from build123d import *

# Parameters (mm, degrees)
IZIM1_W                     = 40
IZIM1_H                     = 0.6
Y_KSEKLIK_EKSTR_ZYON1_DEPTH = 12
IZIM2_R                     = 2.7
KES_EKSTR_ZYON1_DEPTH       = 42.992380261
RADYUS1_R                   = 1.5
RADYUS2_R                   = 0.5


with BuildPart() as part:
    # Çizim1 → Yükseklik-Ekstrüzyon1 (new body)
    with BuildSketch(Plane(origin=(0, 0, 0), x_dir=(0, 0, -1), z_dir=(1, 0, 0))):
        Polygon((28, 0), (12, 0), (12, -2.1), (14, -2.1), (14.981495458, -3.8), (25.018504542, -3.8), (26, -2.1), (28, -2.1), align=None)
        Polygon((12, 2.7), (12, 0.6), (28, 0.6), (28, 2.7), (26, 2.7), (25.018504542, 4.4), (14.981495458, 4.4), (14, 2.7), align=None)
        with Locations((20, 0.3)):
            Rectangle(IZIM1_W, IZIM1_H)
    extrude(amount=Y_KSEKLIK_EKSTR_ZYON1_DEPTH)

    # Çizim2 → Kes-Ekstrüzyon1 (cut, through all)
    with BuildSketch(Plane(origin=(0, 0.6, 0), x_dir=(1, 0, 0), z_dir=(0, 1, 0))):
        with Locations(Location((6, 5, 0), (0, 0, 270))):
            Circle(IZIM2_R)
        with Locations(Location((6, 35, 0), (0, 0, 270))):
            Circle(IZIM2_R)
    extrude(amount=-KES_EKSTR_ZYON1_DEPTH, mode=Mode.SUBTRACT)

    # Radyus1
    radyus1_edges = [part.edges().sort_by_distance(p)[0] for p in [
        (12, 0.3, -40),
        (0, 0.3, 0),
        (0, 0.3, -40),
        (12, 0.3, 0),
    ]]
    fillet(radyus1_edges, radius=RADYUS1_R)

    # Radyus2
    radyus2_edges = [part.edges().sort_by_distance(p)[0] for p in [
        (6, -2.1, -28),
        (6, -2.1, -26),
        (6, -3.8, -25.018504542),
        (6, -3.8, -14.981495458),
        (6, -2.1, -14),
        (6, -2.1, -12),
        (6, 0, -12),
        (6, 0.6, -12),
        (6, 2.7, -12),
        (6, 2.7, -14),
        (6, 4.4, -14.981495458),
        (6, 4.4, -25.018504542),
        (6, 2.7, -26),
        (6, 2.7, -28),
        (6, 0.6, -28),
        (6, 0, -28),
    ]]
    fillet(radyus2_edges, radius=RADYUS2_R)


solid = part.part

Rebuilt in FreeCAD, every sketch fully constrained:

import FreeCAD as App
import Part
import Sketcher
from FreeCAD import Vector
Q = App.Units.Quantity


def edges_at(feature, points):
    """Names of the edges that pass closest to the given points."""
    edges = feature.Shape.Edges
    near = lambda p: min(range(len(edges)), key=lambda i: edges[i].distToShape(Part.Vertex(*p))[0])
    return sorted({f"Edge{near(p) + 1}" for p in points})


def add_polygon(sketch, points):
    """Adds a closed chain of lines whose ends are joined by coincident constraints."""
    first, n = sketch.GeometryCount, len(points)
    for a, b in zip(points, points[1:] + points[:1]):
        sketch.addGeometry(Part.LineSegment(App.Vector(*a, 0), App.Vector(*b, 0)), False)
    for i in range(n):
        sketch.addConstraint(Sketcher.Constraint("Coincident", first + i, 2, first + (i + 1) % n, 1))

doc = App.newDocument("Part")
params = doc.addObject("Spreadsheet::Sheet", "Params")
for row, (alias, value) in enumerate([
    ("sketch1_height", "2 mm"),
    ("sketch1_height2", "12 mm"),
    ("sketch1_width", "2.1 mm"),
    ("sketch1_width2", "0.6 mm"),
    ("pad1_length", "12 mm"),
    ("sketch2_diameter", "5.4 mm"),
    ("fillet_radius", "1.5 mm"),
    ("fillet2_radius", "0.5 mm"),
], start=1):
    params.set(f"A{row}", alias)
    params.set(f"B{row}", "=" + value)
    params.setAlias(f"B{row}", alias)

body = doc.addObject("PartDesign::Body", "Body")

sketch1 = doc.addObject("Sketcher::SketchObject", "Sketch")
body.addObject(sketch1)
sketch1.AttachmentSupport = (doc.YZ_Plane, [""])
sketch1.MapMode = "FlatFace"
add_polygon(sketch1, [(0, -12), (-2.1, -12), (-2.1, -14), (-3.8, -15), (-3.8, -25), (-2.1, -26), (-2.1, -28), (0, -28), (0, -40), (0.6, -40), (0.6, -28), (2.7, -28), (2.7, -26), (4.4, -25), (4.4, -15), (2.7, -14), (2.7, -12), (0.6, -12), (0.6, 0), (0, 0)])
sketch1.addConstraint([
    Sketcher.Constraint("Horizontal", 0),
    Sketcher.Constraint("Vertical", 1),
    Sketcher.Constraint("Vertical", 3),
    Sketcher.Constraint("Vertical", 5),
    Sketcher.Constraint("Horizontal", 6),
    Sketcher.Constraint("Vertical", 7),
    Sketcher.Constraint("Horizontal", 8),
    Sketcher.Constraint("Vertical", 9),
    Sketcher.Constraint("Horizontal", 10),
    Sketcher.Constraint("Vertical", 11),
    Sketcher.Constraint("Vertical", 13),
    Sketcher.Constraint("Vertical", 15),
    Sketcher.Constraint("Horizontal", 16),
    Sketcher.Constraint("Vertical", 17),
    Sketcher.Constraint("Horizontal", 18),
    Sketcher.Constraint("Vertical", 19),
    Sketcher.Constraint("Coincident", 18, 2, -1, 1),
    Sketcher.Constraint("PointOnObject", 6, 2, -2),
    Sketcher.Constraint("Parallel", 2, 12),
    Sketcher.Constraint("Parallel", 4, 14),
    Sketcher.Constraint("Horizontal", 6, 2, 9, 2),
    Sketcher.Constraint("Horizontal", 4, 2, 11, 2),
    Sketcher.Constraint("Horizontal", 3, 2, 12, 2),
    Sketcher.Constraint("Horizontal", 2, 2, 13, 2),
    Sketcher.Constraint("Horizontal", 1, 2, 14, 2),
    Sketcher.Constraint("Horizontal", 0, 2, 15, 2),
    Sketcher.Constraint("Vertical", 1, 2, 4, 2),
    Sketcher.Constraint("Vertical", 11, 2, 14, 2),
    Sketcher.Constraint("Vertical", 9, 2, 16, 2),
    Sketcher.Constraint("Equal", 6, 10),
    Sketcher.Constraint("Equal", 1, 5),
    Sketcher.Constraint("Equal", 9, 17),
    Sketcher.Constraint("DistanceY", 1, 2, 1, 1, Q("2 mm")),
    Sketcher.Constraint("DistanceY", 7, 2, 7, 1, Q("12 mm")),
    Sketcher.Constraint("Angle", 2, Q("-150 deg")),
    Sketcher.Constraint("DistanceX", 0, 2, 0, 1, Q("2.1 mm")),
    Sketcher.Constraint("DistanceX", 8, 1, 8, 2, Q("0.6 mm")),
    Sketcher.Constraint("DistanceY", 4, 2, -1, 1, Q("26 mm")),
    Sketcher.Constraint("DistanceX", 2, 2, -1, 1, Q("3.8 mm")),
])
sketch1.setExpression("Constraints[52]", "Params.sketch1_height")
sketch1.setExpression("Constraints[53]", "Params.sketch1_height2")
sketch1.setExpression("Constraints[55]", "Params.sketch1_width")
sketch1.setExpression("Constraints[56]", "Params.sketch1_width2")
pad1 = doc.addObject("PartDesign::Pad", "Pad")
body.addObject(pad1)
pad1.Profile = sketch1
pad1.setExpression("Length", "Params.pad1_length")

sketch2 = doc.addObject("Sketcher::SketchObject", "Sketch001")
body.addObject(sketch2)
sketch2.AttachmentSupport = (doc.XZ_Plane, [""])
sketch2.MapMode = "FlatFace"
sketch2.AttachmentOffset = App.Placement(Vector(0, 0, -0.6), App.Rotation())
sketch2.addGeometry([
    Part.Circle(Vector(6, -5, 0), Vector(0, 0, 1), 2.7),
    Part.Circle(Vector(6, -35, 0), Vector(0, 0, 1), 2.7),
], False)
sketch2.addConstraint([
    Sketcher.Constraint("Equal", 0, 1),
    Sketcher.Constraint("Vertical", 0, 3, 1, 3),
    Sketcher.Constraint("Diameter", 0, Q("5.4 mm")),
    Sketcher.Constraint("DistanceX", -1, 1, 0, 3, Q("6 mm")),
    Sketcher.Constraint("DistanceY", 0, 3, -1, 1, Q("5 mm")),
    Sketcher.Constraint("DistanceY", 1, 3, -1, 1, Q("35 mm")),
])
sketch2.setExpression("Constraints[2]", "Params.sketch2_diameter")
pocket1 = doc.addObject("PartDesign::Pocket", "Pocket")
body.addObject(pocket1)
pocket1.Profile = sketch2
pocket1.Type = "ThroughAll"
pocket1.Reversed = True
doc.recompute()

fillet = doc.addObject("PartDesign::Fillet", "Fillet")
body.addObject(fillet)
fillet.Base = (pocket1, edges_at(pocket1, [
    (12, 0.3, -40),
    (0, 0.3, 0),
    (0, 0.3, -40),
    (12, 0.3, 0),
]))
fillet.setExpression("Radius", "Params.fillet_radius")
doc.recompute()

fillet2 = doc.addObject("PartDesign::Fillet", "Fillet001")
body.addObject(fillet2)
fillet2.Base = (fillet, edges_at(fillet, [
    (6, -2.1, -28),
    (6, -2.1, -26),
    (6, -3.8, -25.019),
    (6, -3.8, -14.981),
    (6, -2.1, -14),
    (6, -2.1, -12),
    (6, 0, -12),
    (6, 0.6, -12),
    (6, 2.7, -12),
    (6, 2.7, -14),
    (6, 4.4, -14.981),
    (6, 4.4, -25.019),
    (6, 2.7, -26),
    (6, 2.7, -28),
    (6, 0.6, -28),
    (6, 0, -28),
]))
fillet2.setExpression("Radius", "Params.fillet2_radius")

doc.recompute()
